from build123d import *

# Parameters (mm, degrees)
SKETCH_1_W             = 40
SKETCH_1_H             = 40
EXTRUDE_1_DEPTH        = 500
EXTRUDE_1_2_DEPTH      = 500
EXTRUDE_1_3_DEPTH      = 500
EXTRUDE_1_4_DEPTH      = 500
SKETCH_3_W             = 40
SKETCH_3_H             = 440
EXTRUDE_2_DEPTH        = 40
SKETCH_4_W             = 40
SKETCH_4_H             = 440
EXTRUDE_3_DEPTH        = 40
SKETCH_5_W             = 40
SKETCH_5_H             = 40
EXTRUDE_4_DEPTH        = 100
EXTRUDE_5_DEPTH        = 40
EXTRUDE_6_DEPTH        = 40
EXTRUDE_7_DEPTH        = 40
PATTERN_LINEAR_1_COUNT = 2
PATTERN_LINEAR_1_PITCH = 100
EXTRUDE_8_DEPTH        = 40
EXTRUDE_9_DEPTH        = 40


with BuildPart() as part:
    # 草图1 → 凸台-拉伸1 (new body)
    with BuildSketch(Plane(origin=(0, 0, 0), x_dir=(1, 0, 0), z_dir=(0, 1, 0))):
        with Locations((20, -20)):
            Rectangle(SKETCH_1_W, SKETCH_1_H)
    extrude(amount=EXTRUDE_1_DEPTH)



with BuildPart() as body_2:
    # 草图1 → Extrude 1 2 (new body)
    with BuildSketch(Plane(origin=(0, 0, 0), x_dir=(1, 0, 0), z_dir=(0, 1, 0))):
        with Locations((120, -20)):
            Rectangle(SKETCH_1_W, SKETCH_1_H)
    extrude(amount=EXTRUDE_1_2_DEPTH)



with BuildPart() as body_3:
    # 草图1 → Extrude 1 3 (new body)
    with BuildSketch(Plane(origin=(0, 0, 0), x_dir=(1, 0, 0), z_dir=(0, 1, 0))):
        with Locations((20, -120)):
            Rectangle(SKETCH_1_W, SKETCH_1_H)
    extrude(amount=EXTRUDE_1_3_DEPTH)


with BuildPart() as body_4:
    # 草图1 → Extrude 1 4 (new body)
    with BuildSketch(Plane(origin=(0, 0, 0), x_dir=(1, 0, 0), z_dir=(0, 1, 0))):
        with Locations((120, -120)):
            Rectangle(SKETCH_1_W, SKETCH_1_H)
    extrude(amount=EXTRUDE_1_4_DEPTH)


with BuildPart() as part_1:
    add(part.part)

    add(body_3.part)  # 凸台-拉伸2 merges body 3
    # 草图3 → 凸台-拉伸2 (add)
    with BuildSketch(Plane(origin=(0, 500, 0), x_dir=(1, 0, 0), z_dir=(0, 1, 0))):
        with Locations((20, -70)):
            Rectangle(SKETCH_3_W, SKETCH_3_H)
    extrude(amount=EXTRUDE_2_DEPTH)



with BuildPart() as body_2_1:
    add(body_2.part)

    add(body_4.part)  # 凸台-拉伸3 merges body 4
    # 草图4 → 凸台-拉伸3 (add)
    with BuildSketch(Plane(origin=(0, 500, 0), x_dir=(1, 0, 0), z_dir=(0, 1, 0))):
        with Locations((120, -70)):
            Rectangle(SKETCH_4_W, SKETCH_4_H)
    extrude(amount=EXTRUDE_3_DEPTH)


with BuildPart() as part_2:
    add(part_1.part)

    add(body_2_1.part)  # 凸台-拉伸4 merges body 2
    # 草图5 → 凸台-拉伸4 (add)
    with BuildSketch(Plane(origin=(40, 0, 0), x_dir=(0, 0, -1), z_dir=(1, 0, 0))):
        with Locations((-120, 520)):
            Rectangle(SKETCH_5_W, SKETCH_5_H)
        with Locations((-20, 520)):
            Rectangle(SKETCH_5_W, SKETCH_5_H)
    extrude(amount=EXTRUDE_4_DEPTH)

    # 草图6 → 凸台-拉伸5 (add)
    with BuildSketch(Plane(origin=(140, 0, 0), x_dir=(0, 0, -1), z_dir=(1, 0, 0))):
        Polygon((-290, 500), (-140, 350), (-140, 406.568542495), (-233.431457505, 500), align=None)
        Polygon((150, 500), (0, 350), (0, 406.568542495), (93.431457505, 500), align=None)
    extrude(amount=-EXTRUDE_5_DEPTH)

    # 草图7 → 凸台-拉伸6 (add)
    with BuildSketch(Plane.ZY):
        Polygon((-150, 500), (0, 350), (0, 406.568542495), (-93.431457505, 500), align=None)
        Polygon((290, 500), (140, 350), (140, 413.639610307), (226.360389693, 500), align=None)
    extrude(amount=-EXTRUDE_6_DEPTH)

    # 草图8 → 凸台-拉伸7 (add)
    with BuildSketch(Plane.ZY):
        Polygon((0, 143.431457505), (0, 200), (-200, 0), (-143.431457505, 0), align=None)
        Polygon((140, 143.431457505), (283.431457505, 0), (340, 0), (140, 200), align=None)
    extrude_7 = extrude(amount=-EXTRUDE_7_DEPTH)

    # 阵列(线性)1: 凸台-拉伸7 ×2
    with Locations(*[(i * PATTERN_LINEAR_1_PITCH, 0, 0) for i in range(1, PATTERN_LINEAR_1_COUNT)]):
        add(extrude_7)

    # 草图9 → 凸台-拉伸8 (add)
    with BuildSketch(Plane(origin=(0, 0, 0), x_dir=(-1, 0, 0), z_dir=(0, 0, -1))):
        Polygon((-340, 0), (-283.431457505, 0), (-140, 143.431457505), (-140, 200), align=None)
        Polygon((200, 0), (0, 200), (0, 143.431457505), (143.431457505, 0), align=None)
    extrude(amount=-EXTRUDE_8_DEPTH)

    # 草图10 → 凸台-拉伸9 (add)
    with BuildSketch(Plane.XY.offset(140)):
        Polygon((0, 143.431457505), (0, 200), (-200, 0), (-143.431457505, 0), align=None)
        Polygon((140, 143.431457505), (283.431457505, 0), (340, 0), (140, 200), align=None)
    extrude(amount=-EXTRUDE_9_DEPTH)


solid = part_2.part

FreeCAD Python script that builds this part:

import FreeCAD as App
import Part
import Sketcher

doc = App.newDocument("Part")
body = doc.addObject("PartDesign::Body", "Body")

sketch1 = body.newObject("Sketcher::SketchObject", "Sketch")
sketch1.AttachmentSupport = (doc.getObject("XZ_Plane"), [""])
sketch1.MapMode = "FlatFace"
sketch1.addGeometry([
    Part.LineSegment(App.Vector(0, 0, 0), App.Vector(0, 40, 0)),
    Part.LineSegment(App.Vector(0, 40, 0), App.Vector(40, 40, 0)),
    Part.LineSegment(App.Vector(40, 40, 0), App.Vector(40, 0, 0)),
    Part.LineSegment(App.Vector(40, 0, 0), App.Vector(0, 0, 0)),
], False)
sketch1.addConstraint([
    Sketcher.Constraint("Coincident", 0, 2, 1, 1),
    Sketcher.Constraint("Coincident", 1, 2, 2, 1),
    Sketcher.Constraint("Coincident", 2, 2, 3, 1),
    Sketcher.Constraint("Coincident", 3, 2, 0, 1),
    Sketcher.Constraint("Vertical", 0),
    Sketcher.Constraint("Horizontal", 1),
    Sketcher.Constraint("Vertical", 2),
    Sketcher.Constraint("Horizontal", 3),
    Sketcher.Constraint("Coincident", 3, 2, -1, 1),
    Sketcher.Constraint("Equal", 3, 0),
    Sketcher.Constraint("DistanceX", 1, 1, 1, 2, 40.0),
])
pad1 = body.newObject("PartDesign::Pad", "Pad")
pad1.Profile = sketch1
pad1.Length = 500
pad1.Reversed = True
body2 = doc.addObject("PartDesign::Body", "Body001")

sketch2 = body2.newObject("Sketcher::SketchObject", "Sketch001")
sketch2.AttachmentSupport = (doc.getObject("XZ_Plane001"), [""])
sketch2.MapMode = "FlatFace"
sketch2.addGeometry([
    Part.LineSegment(App.Vector(100, 0, 0), App.Vector(100, 40, 0)),
    Part.LineSegment(App.Vector(100, 40, 0), App.Vector(140, 40, 0)),
    Part.LineSegment(App.Vector(140, 40, 0), App.Vector(140, 0, 0)),
    Part.LineSegment(App.Vector(140, 0, 0), App.Vector(100, 0, 0)),
], False)
sketch2.addConstraint([
    Sketcher.Constraint("Coincident", 0, 2, 1, 1),
    Sketcher.Constraint("Coincident", 1, 2, 2, 1),
    Sketcher.Constraint("Coincident", 2, 2, 3, 1),
    Sketcher.Constraint("Coincident", 3, 2, 0, 1),
    Sketcher.Constraint("Vertical", 0),
    Sketcher.Constraint("Horizontal", 1),
    Sketcher.Constraint("Vertical", 2),
    Sketcher.Constraint("Horizontal", 3),
    Sketcher.Constraint("PointOnObject", 2, 2, -1),
    Sketcher.Constraint("Equal", 3, 0),
    Sketcher.Constraint("DistanceX", 1, 1, 1, 2, 40.0),
    Sketcher.Constraint("DistanceX", -1, 1, 0, 2, 100.0),
])
pad2 = body2.newObject("PartDesign::Pad", "Pad001")
pad2.Profile = sketch2
pad2.Length = 500
pad2.Reversed = True
body3 = doc.addObject("PartDesign::Body", "Body002")

sketch3 = body3.newObject("Sketcher::SketchObject", "Sketch002")
sketch3.AttachmentSupport = (doc.getObject("XZ_Plane002"), [""])
sketch3.MapMode = "FlatFace"
sketch3.addGeometry([
    Part.LineSegment(App.Vector(0, 100, 0), App.Vector(0, 140, 0)),
    Part.LineSegment(App.Vector(0, 140, 0), App.Vector(40, 140, 0)),
    Part.LineSegment(App.Vector(40, 140, 0), App.Vector(40, 100, 0)),
    Part.LineSegment(App.Vector(40, 100, 0), App.Vector(0, 100, 0)),
], False)
sketch3.addConstraint([
    Sketcher.Constraint("Coincident", 0, 2, 1, 1),
    Sketcher.Constraint("Coincident", 1, 2, 2, 1),
    Sketcher.Constraint("Coincident", 2, 2, 3, 1),
    Sketcher.Constraint("Coincident", 3, 2, 0, 1),
    Sketcher.Constraint("Vertical", 0),
    Sketcher.Constraint("Horizontal", 1),
    Sketcher.Constraint("Vertical", 2),
    Sketcher.Constraint("Horizontal", 3),
    Sketcher.Constraint("PointOnObject", 0, 2, -2),
    Sketcher.Constraint("Equal", 3, 0),
    Sketcher.Constraint("DistanceX", 1, 1, 1, 2, 40.0),
    Sketcher.Constraint("DistanceY", -1, 1, 0, 2, 140.0),
])
pad3 = body3.newObject("PartDesign::Pad", "Pad002")
pad3.Profile = sketch3
pad3.Length = 500
pad3.Reversed = True
body4 = doc.addObject("PartDesign::Body", "Body003")

sketch4 = body4.newObject("Sketcher::SketchObject", "Sketch003")
sketch4.AttachmentSupport = (doc.getObject("XZ_Plane003"), [""])
sketch4.MapMode = "FlatFace"
sketch4.addGeometry([
    Part.LineSegment(App.Vector(100, 100, 0), App.Vector(100, 140, 0)),
    Part.LineSegment(App.Vector(100, 140, 0), App.Vector(140, 140, 0)),
    Part.LineSegment(App.Vector(140, 140, 0), App.Vector(140, 100, 0)),
    Part.LineSegment(App.Vector(140, 100, 0), App.Vector(100, 100, 0)),
], False)
sketch4.addConstraint([
    Sketcher.Constraint("Coincident", 0, 2, 1, 1),
    Sketcher.Constraint("Coincident", 1, 2, 2, 1),
    Sketcher.Constraint("Coincident", 2, 2, 3, 1),
    Sketcher.Constraint("Coincident", 3, 2, 0, 1),
    Sketcher.Constraint("Vertical", 0),
    Sketcher.Constraint("Horizontal", 1),
    Sketcher.Constraint("Vertical", 2),
    Sketcher.Constraint("Horizontal", 3),
    Sketcher.Constraint("Equal", 3, 0),
    Sketcher.Constraint("DistanceX", 1, 1, 1, 2, 40.0),
    Sketcher.Constraint("DistanceX", -1, 1, 0, 2, 100.0),
    Sketcher.Constraint("DistanceY", -1, 1, 0, 2, 140.0),
])
pad4 = body4.newObject("PartDesign::Pad", "Pad003")
pad4.Profile = sketch4
pad4.Length = 500
pad4.Reversed = True
body.AllowCompound = True
doc.recompute()

boolean = body.newObject("PartDesign::Boolean", "Boolean")
boolean.Type = "Fuse"
boolean.addObjects([body3])

sketch5 = body.newObject("Sketcher::SketchObject", "Sketch004")
sketch5.AttachmentSupport = (doc.getObject("XZ_Plane"), [""])
sketch5.MapMode = "FlatFace"
sketch5.AttachmentOffset = App.Placement(App.Vector(0, 0, -500), App.Rotation())
sketch5.addGeometry([
    Part.LineSegment(App.Vector(0, -150, 0), App.Vector(0, 290, 0)),
    Part.LineSegment(App.Vector(0, 290, 0), App.Vector(40, 290, 0)),
    Part.LineSegment(App.Vector(40, 290, 0), App.Vector(40, -150, 0)),
    Part.LineSegment(App.Vector(40, -150, 0), App.Vector(0, -150, 0)),
], False)
sketch5.addConstraint([
    Sketcher.Constraint("Coincident", 0, 2, 1, 1),
    Sketcher.Constraint("Coincident", 1, 2, 2, 1),
    Sketcher.Constraint("Coincident", 2, 2, 3, 1),
    Sketcher.Constraint("Coincident", 3, 2, 0, 1),
    Sketcher.Constraint("Vertical", 0),
    Sketcher.Constraint("Horizontal", 1),
    Sketcher.Constraint("Vertical", 2),
    Sketcher.Constraint("Horizontal", 3),
    Sketcher.Constraint("PointOnObject", 0, 2, -2),
    Sketcher.Constraint("DistanceX", 1, 1, 1, 2, 40.0),
    Sketcher.Constraint("DistanceY", 0, 1, 0, 2, 440.0),
    Sketcher.Constraint("DistanceY", -1, 1, 0, 2, 290.0),
])
pad5 = body.newObject("PartDesign::Pad", "Pad004")
pad5.Profile = sketch5
pad5.Length = 40
pad5.Reversed = True
body2.AllowCompound = True
doc.recompute()

boolean2 = body2.newObject("PartDesign::Boolean", "Boolean001")
boolean2.Type = "Fuse"
boolean2.addObjects([body4])

sketch6 = body2.newObject("Sketcher::SketchObject", "Sketch005")
sketch6.AttachmentSupport = (doc.getObject("XZ_Plane001"), [""])
sketch6.MapMode = "FlatFace"
sketch6.AttachmentOffset = App.Placement(App.Vector(0, 0, -500), App.Rotation())
sketch6.addGeometry([
    Part.LineSegment(App.Vector(100, -150, 0), App.Vector(100, 290, 0)),
    Part.LineSegment(App.Vector(100, 290, 0), App.Vector(140, 290, 0)),
    Part.LineSegment(App.Vector(140, 290, 0), App.Vector(140, -150, 0)),
    Part.LineSegment(App.Vector(140, -150, 0), App.Vector(100, -150, 0)),
], False)
sketch6.addConstraint([
    Sketcher.Constraint("Coincident", 0, 2, 1, 1),
    Sketcher.Constraint("Coincident", 1, 2, 2, 1),
    Sketcher.Constraint("Coincident", 2, 2, 3, 1),
    Sketcher.Constraint("Coincident", 3, 2, 0, 1),
    Sketcher.Constraint("Vertical", 0),
    Sketcher.Constraint("Horizontal", 1),
    Sketcher.Constraint("Vertical", 2),
    Sketcher.Constraint("Horizontal", 3),
    Sketcher.Constraint("DistanceX", 1, 1, 1, 2, 40.0),
    Sketcher.Constraint("DistanceY", 0, 1, 0, 2, 440.0),
    Sketcher.Constraint("DistanceX", -1, 1, 0, 2, 100.0),
    Sketcher.Constraint("DistanceY", -1, 1, 0, 2, 290.0),
])
pad6 = body2.newObject("PartDesign::Pad", "Pad005")
pad6.Profile = sketch6
pad6.Length = 40
pad6.Reversed = True
body.AllowCompound = True
doc.recompute()

boolean3 = body.newObject("PartDesign::Boolean", "Boolean002")
boolean3.Type = "Fuse"
boolean3.addObjects([body2])

sketch7 = body.newObject("Sketcher::SketchObject", "Sketch006")
sketch7.AttachmentSupport = (doc.getObject("YZ_Plane"), [""])
sketch7.MapMode = "FlatFace"
sketch7.AttachmentOffset = App.Placement(App.Vector(0, 0, 40), App.Rotation())
sketch7.addGeometry([
    Part.LineSegment(App.Vector(540, 140, 0), App.Vector(500, 140, 0)),
    Part.LineSegment(App.Vector(500, 140, 0), App.Vector(500, 100, 0)),
    Part.LineSegment(App.Vector(500, 100, 0), App.Vector(540, 100, 0)),
    Part.LineSegment(App.Vector(540, 100, 0), App.Vector(540, 140, 0)),
    Part.LineSegment(App.Vector(540, 40, 0), App.Vector(500, 40, 0)),
    Part.LineSegment(App.Vector(500, 40, 0), App.Vector(500, 0, 0)),
    Part.LineSegment(App.Vector(500, 0, 0), App.Vector(540, 0, 0)),
    Part.LineSegment(App.Vector(540, 0, 0), App.Vector(540, 40, 0)),
], False)
sketch7.addConstraint([
    Sketcher.Constraint("Coincident", 0, 2, 1, 1),
    Sketcher.Constraint("Coincident", 1, 2, 2, 1),
    Sketcher.Constraint("Coincident", 2, 2, 3, 1),
    Sketcher.Constraint("Coincident", 3, 2, 0, 1),
    Sketcher.Constraint("Coincident", 4, 2, 5, 1),
    Sketcher.Constraint("Coincident", 5, 2, 6, 1),
    Sketcher.Constraint("Coincident", 6, 2, 7, 1),
    Sketcher.Constraint("Coincident", 7, 2, 4, 1),
    Sketcher.Constraint("Horizontal", 0),
    Sketcher.Constraint("Vertical", 1),
    Sketcher.Constraint("Horizontal", 2),
    Sketcher.Constraint("Vertical", 3),
    Sketcher.Constraint("Horizontal", 4),
    Sketcher.Constraint("Vertical", 5),
    Sketcher.Constraint("Horizontal", 6),
    Sketcher.Constraint("Vertical", 7),
    Sketcher.Constraint("PointOnObject", 5, 2, -1),
    Sketcher.Constraint("Vertical", 1, 2, 4, 2),
    Sketcher.Constraint("Vertical", 3, 2, 6, 2),
    Sketcher.Constraint("Equal", 6, 1),
    Sketcher.Constraint("Equal", 3, 5),
    Sketcher.Constraint("DistanceX", 0, 2, 0, 1, 40.0),
    Sketcher.Constraint("DistanceX", -1, 1, 0, 2, 500.0),
    Sketcher.Constraint("DistanceY", -1, 1, 0, 2, 140.0),
])
pad7 = body.newObject("PartDesign::Pad", "Pad006")
pad7.Profile = sketch7
pad7.Length = 100

sketch8 = body.newObject("Sketcher::SketchObject", "Sketch007")
sketch8.AttachmentSupport = (doc.getObject("YZ_Plane"), [""])
sketch8.MapMode = "FlatFace"
sketch8.AttachmentOffset = App.Placement(App.Vector(0, 0, 140), App.Rotation())
sketch8.addGeometry([
    Part.LineSegment(App.Vector(500, 290, 0), App.Vector(350, 140, 0)),
    Part.LineSegment(App.Vector(350, 140, 0), App.Vector(407, 140, 0)),
    Part.LineSegment(App.Vector(407, 140, 0), App.Vector(500, 233, 0)),
    Part.LineSegment(App.Vector(500, 233, 0), App.Vector(500, 290, 0)),
    Part.LineSegment(App.Vector(350, 0, 0), App.Vector(500, -150, 0)),
    Part.LineSegment(App.Vector(500, -150, 0), App.Vector(500, -93, 0)),
    Part.LineSegment(App.Vector(500, -93, 0), App.Vector(407, 0, 0)),
    Part.LineSegment(App.Vector(407, 0, 0), App.Vector(350, 0, 0)),
], False)
sketch8.addConstraint([
    Sketcher.Constraint("Coincident", 0, 2, 1, 1),
    Sketcher.Constraint("Coincident", 1, 2, 2, 1),
    Sketcher.Constraint("Coincident", 2, 2, 3, 1),
    Sketcher.Constraint("Coincident", 3, 2, 0, 1),
    Sketcher.Constraint("Coincident", 4, 2, 5, 1),
    Sketcher.Constraint("Coincident", 5, 2, 6, 1),
    Sketcher.Constraint("Coincident", 6, 2, 7, 1),
    Sketcher.Constraint("Coincident", 7, 2, 4, 1),
    Sketcher.Constraint("Horizontal", 1),
    Sketcher.Constraint("Vertical", 3),
    Sketcher.Constraint("Vertical", 5),
    Sketcher.Constraint("Horizontal", 7),
    Sketcher.Constraint("PointOnObject", 6, 2, -1),
    Sketcher.Constraint("Parallel", 0, 2),
    Sketcher.Constraint("Perpendicular", 2, 4),
    Sketcher.Constraint("Parallel", 4, 6),
    Sketcher.Constraint("Vertical", 3, 2, 4, 2),
    Sketcher.Constraint("Vertical", 1, 2, 6, 2),
    Sketcher.Constraint("Vertical", 0, 2, 7, 2),
    Sketcher.Constraint("Equal", 7, 3),
    Sketcher.Constraint("DistanceX", -1, 1, 0, 2, 350.0),
    Sketcher.Constraint("DistanceY", -1, 1, 0, 2, 140.0),
    Sketcher.Constraint("DistanceX", -1, 1, 2, 2, 500.0),
    Sketcher.Constraint("DistanceX", 1, 1, 1, 2, 56.568542),
])
pad8 = body.newObject("PartDesign::Pad", "Pad007")
pad8.Profile = sketch8
pad8.Length = 40
pad8.Reversed = True

sketch9 = body.newObject("Sketcher::SketchObject", "Sketch008")
sketch9.AttachmentSupport = (doc.getObject("YZ_Plane"), [""])
sketch9.MapMode = "FlatFace"
sketch9.addGeometry([
    Part.LineSegment(App.Vector(500, -150, 0), App.Vector(350, 0, 0)),
    Part.LineSegment(App.Vector(350, 0, 0), App.Vector(407, 0, 0)),
    Part.LineSegment(App.Vector(407, 0, 0), App.Vector(500, -93, 0)),
    Part.LineSegment(App.Vector(500, -93, 0), App.Vector(500, -150, 0)),
    Part.LineSegment(App.Vector(350, 140, 0), App.Vector(500, 290, 0)),
    Part.LineSegment(App.Vector(500, 290, 0), App.Vector(500, 226, 0)),
    Part.LineSegment(App.Vector(500, 226, 0), App.Vector(414, 140, 0)),
    Part.LineSegment(App.Vector(414, 140, 0), App.Vector(350, 140, 0)),
], False)
sketch9.addConstraint([
    Sketcher.Constraint("Coincident", 0, 2, 1, 1),
    Sketcher.Constraint("Coincident", 1, 2, 2, 1),
    Sketcher.Constraint("Coincident", 2, 2, 3, 1),
    Sketcher.Constraint("Coincident", 3, 2, 0, 1),
    Sketcher.Constraint("Coincident", 4, 2, 5, 1),
    Sketcher.Constraint("Coincident", 5, 2, 6, 1),
    Sketcher.Constraint("Coincident", 6, 2, 7, 1),
    Sketcher.Constraint("Coincident", 7, 2, 4, 1),
    Sketcher.Constraint("Horizontal", 1),
    Sketcher.Constraint("Vertical", 3),
    Sketcher.Constraint("Vertical", 5),
    Sketcher.Constraint("Horizontal", 7),
    Sketcher.Constraint("PointOnObject", 0, 2, -1),
    Sketcher.Constraint("Parallel", 0, 2),
    Sketcher.Constraint("Perpendicular", 2, 4),
    Sketcher.Constraint("Parallel", 4, 6),
    Sketcher.Constraint("Vertical", 3, 2, 4, 2),
    Sketcher.Constraint("Vertical", 0, 2, 7, 2),
    Sketcher.Constraint("Equal", 1, 3),
    Sketcher.Constraint("DistanceX", -1, 1, 0, 2, 350.0),
    Sketcher.Constraint("DistanceX", -1, 1, 2, 2, 500.0),
    Sketcher.Constraint("DistanceY", -1, 1, 4, 2, 290.0),
    Sketcher.Constraint("DistanceX", 7, 2, 7, 1, 63.63961),
    Sketcher.Constraint("DistanceX", 1, 1, 1, 2, 56.568542),
])
pad9 = body.newObject("PartDesign::Pad", "Pad008")
pad9.Profile = sketch9
pad9.Length = 40

sketch10 = body.newObject("Sketcher::SketchObject", "Sketch009")
sketch10.AttachmentSupport = (doc.getObject("YZ_Plane"), [""])
sketch10.MapMode = "FlatFace"
sketch10.addGeometry([
    Part.LineSegment(App.Vector(143, 0, 0), App.Vector(200, 0, 0)),
    Part.LineSegment(App.Vector(200, 0, 0), App.Vector(0, -200, 0)),
    Part.LineSegment(App.Vector(0, -200, 0), App.Vector(0, -143, 0)),
    Part.LineSegment(App.Vector(0, -143, 0), App.Vector(143, 0, 0)),
    Part.LineSegment(App.Vector(143, 140, 0), App.Vector(0, 283, 0)),
    Part.LineSegment(App.Vector(0, 283, 0), App.Vector(0, 340, 0)),
    Part.LineSegment(App.Vector(0, 340, 0), App.Vector(200, 140, 0)),
    Part.LineSegment(App.Vector(200, 140, 0), App.Vector(143, 140, 0)),
], False)
sketch10.addConstraint([
    Sketcher.Constraint("Coincident", 0, 2, 1, 1),
    Sketcher.Constraint("Coincident", 1, 2, 2, 1),
    Sketcher.Constraint("Coincident", 2, 2, 3, 1),
    Sketcher.Constraint("Coincident", 3, 2, 0, 1),
    Sketcher.Constraint("Coincident", 4, 2, 5, 1),
    Sketcher.Constraint("Coincident", 5, 2, 6, 1),
    Sketcher.Constraint("Coincident", 6, 2, 7, 1),
    Sketcher.Constraint("Coincident", 7, 2, 4, 1),
    Sketcher.Constraint("Horizontal", 0),
    Sketcher.Constraint("Vertical", 2),
    Sketcher.Constraint("Vertical", 5),
    Sketcher.Constraint("Horizontal", 7),
    Sketcher.Constraint("PointOnObject", 0, 2, -1),
    Sketcher.Constraint("PointOnObject", 1, 2, -2),
    Sketcher.Constraint("PointOnObject", 4, 2, -2),
    Sketcher.Constraint("Parallel", 1, 3),
    Sketcher.Constraint("Perpendicular", 3, 4),
    Sketcher.Constraint("Parallel", 4, 6),
    Sketcher.Constraint("Vertical", 0, 2, 6, 2),
    Sketcher.Constraint("Vertical", 3, 2, 7, 2),
    Sketcher.Constraint("Equal", 7, 2),
    Sketcher.Constraint("DistanceX", -1, 1, 0, 2, 200.0),
    Sketcher.Constraint("DistanceY", -1, 1, 5, 2, 340.0),
    Sketcher.Constraint("DistanceX", 0, 1, 0, 2, 56.568542),
])
pad10 = body.newObject("PartDesign::Pad", "Pad009")
pad10.Profile = sketch10
pad10.Length = 40
doc.recompute()

linearpattern = body.newObject("PartDesign::LinearPattern", "LinearPattern")
linearpattern.Originals = [pad10]
linearpattern.Direction = (doc.getObject("X_Axis"), [""])
linearpattern.Mode = "offset"
linearpattern.Offset = 100
linearpattern.Occurrences = 2
body.Tip = linearpattern

sketch11 = body.newObject("Sketcher::SketchObject", "Sketch010")
sketch11.AttachmentSupport = (doc.getObject("XY_Plane"), [""])
sketch11.MapMode = "FlatFace"
sketch11.addGeometry([
    Part.LineSegment(App.Vector(340, 0, 0), App.Vector(283, 0, 0)),
    Part.LineSegment(App.Vector(283, 0, 0), App.Vector(140, 143, 0)),
    Part.LineSegment(App.Vector(140, 143, 0), App.Vector(140, 200, 0)),
    Part.LineSegment(App.Vector(140, 200, 0), App.Vector(340, 0, 0)),
    Part.LineSegment(App.Vector(-200, 0, 0), App.Vector(0, 200, 0)),
    Part.LineSegment(App.Vector(0, 200, 0), App.Vector(0, 143, 0)),
    Part.LineSegment(App.Vector(0, 143, 0), App.Vector(-143, 0, 0)),
    Part.LineSegment(App.Vector(-143, 0, 0), App.Vector(-200, 0, 0)),
], False)
sketch11.addConstraint([
    Sketcher.Constraint("Coincident", 0, 2, 1, 1),
    Sketcher.Constraint("Coincident", 1, 2, 2, 1),
    Sketcher.Constraint("Coincident", 2, 2, 3, 1),
    Sketcher.Constraint("Coincident", 3, 2, 0, 1),
    Sketcher.Constraint("Coincident", 4, 2, 5, 1),
    Sketcher.Constraint("Coincident", 5, 2, 6, 1),
    Sketcher.Constraint("Coincident", 6, 2, 7, 1),
    Sketcher.Constraint("Coincident", 7, 2, 4, 1),
    Sketcher.Constraint("Horizontal", 0),
    Sketcher.Constraint("Vertical", 2),
    Sketcher.Constraint("Vertical", 5),
    Sketcher.Constraint("Horizontal", 7),
    Sketcher.Constraint("PointOnObject", 0, 2, -1),
    Sketcher.Constraint("PointOnObject", 4, 2, -2),
    Sketcher.Constraint("PointOnObject", 6, 2, -1),
    Sketcher.Constraint("Parallel", 1, 3),
    Sketcher.Constraint("Perpendicular", 3, 4),
    Sketcher.Constraint("Parallel", 4, 6),
    Sketcher.Constraint("Horizontal", 2, 2, 4, 2),
    Sketcher.Constraint("Horizontal", 1, 2, 5, 2),
    Sketcher.Constraint("Equal", 0, 7),
    Sketcher.Constraint("DistanceX", -1, 1, 1, 2, 140.0),
    Sketcher.Constraint("DistanceY", -1, 1, 2, 2, 200.0),
    Sketcher.Constraint("DistanceX", 0, 2, 0, 1, 56.568542),
])
pad11 = body.newObject("PartDesign::Pad", "Pad010")
pad11.Profile = sketch11
pad11.Length = 40

sketch12 = body.newObject("Sketcher::SketchObject", "Sketch011")
sketch12.AttachmentSupport = (doc.getObject("XY_Plane"), [""])
sketch12.MapMode = "FlatFace"
sketch12.AttachmentOffset = App.Placement(App.Vector(0, 0, 140), App.Rotation())
sketch12.addGeometry([
    Part.LineSegment(App.Vector(0, 143, 0), App.Vector(0, 200, 0)),
    Part.LineSegment(App.Vector(0, 200, 0), App.Vector(-200, 0, 0)),
    Part.LineSegment(App.Vector(-200, 0, 0), App.Vector(-143, 0, 0)),
    Part.LineSegment(App.Vector(-143, 0, 0), App.Vector(0, 143, 0)),
    Part.LineSegment(App.Vector(140, 143, 0), App.Vector(283, 0, 0)),
    Part.LineSegment(App.Vector(283, 0, 0), App.Vector(340, 0, 0)),
    Part.LineSegment(App.Vector(340, 0, 0), App.Vector(140, 200, 0)),
    Part.LineSegment(App.Vector(140, 200, 0), App.Vector(140, 143, 0)),
], False)
sketch12.addConstraint([
    Sketcher.Constraint("Coincident", 0, 2, 1, 1),
    Sketcher.Constraint("Coincident", 1, 2, 2, 1),
    Sketcher.Constraint("Coincident", 2, 2, 3, 1),
    Sketcher.Constraint("Coincident", 3, 2, 0, 1),
    Sketcher.Constraint("Coincident", 4, 2, 5, 1),
    Sketcher.Constraint("Coincident", 5, 2, 6, 1),
    Sketcher.Constraint("Coincident", 6, 2, 7, 1),
    Sketcher.Constraint("Coincident", 7, 2, 4, 1),
    Sketcher.Constraint("Vertical", 0),
    Sketcher.Constraint("Horizontal", 2),
    Sketcher.Constraint("Horizontal", 5),
    Sketcher.Constraint("Vertical", 7),
    Sketcher.Constraint("PointOnObject", 0, 2, -2),
    Sketcher.Constraint("PointOnObject", 1, 2, -1),
    Sketcher.Constraint("PointOnObject", 4, 2, -1),
    Sketcher.Constraint("Parallel", 1, 3),
    Sketcher.Constraint("Perpendicular", 3, 4),
    Sketcher.Constraint("Parallel", 4, 6),
    Sketcher.Constraint("Horizontal", 0, 2, 6, 2),
    Sketcher.Constraint("Horizontal", 3, 2, 7, 2),
    Sketcher.Constraint("Equal", 2, 5),
    Sketcher.Constraint("DistanceY", -1, 1, 0, 2, 200.0),
    Sketcher.Constraint("DistanceX", -1, 1, 5, 2, 340.0),
    Sketcher.Constraint("DistanceX", 2, 1, 2, 2, 56.568542),
])
pad12 = body.newObject("PartDesign::Pad", "Pad011")
pad12.Profile = sketch12
pad12.Length = 40
pad12.Reversed = True

doc.recompute()
